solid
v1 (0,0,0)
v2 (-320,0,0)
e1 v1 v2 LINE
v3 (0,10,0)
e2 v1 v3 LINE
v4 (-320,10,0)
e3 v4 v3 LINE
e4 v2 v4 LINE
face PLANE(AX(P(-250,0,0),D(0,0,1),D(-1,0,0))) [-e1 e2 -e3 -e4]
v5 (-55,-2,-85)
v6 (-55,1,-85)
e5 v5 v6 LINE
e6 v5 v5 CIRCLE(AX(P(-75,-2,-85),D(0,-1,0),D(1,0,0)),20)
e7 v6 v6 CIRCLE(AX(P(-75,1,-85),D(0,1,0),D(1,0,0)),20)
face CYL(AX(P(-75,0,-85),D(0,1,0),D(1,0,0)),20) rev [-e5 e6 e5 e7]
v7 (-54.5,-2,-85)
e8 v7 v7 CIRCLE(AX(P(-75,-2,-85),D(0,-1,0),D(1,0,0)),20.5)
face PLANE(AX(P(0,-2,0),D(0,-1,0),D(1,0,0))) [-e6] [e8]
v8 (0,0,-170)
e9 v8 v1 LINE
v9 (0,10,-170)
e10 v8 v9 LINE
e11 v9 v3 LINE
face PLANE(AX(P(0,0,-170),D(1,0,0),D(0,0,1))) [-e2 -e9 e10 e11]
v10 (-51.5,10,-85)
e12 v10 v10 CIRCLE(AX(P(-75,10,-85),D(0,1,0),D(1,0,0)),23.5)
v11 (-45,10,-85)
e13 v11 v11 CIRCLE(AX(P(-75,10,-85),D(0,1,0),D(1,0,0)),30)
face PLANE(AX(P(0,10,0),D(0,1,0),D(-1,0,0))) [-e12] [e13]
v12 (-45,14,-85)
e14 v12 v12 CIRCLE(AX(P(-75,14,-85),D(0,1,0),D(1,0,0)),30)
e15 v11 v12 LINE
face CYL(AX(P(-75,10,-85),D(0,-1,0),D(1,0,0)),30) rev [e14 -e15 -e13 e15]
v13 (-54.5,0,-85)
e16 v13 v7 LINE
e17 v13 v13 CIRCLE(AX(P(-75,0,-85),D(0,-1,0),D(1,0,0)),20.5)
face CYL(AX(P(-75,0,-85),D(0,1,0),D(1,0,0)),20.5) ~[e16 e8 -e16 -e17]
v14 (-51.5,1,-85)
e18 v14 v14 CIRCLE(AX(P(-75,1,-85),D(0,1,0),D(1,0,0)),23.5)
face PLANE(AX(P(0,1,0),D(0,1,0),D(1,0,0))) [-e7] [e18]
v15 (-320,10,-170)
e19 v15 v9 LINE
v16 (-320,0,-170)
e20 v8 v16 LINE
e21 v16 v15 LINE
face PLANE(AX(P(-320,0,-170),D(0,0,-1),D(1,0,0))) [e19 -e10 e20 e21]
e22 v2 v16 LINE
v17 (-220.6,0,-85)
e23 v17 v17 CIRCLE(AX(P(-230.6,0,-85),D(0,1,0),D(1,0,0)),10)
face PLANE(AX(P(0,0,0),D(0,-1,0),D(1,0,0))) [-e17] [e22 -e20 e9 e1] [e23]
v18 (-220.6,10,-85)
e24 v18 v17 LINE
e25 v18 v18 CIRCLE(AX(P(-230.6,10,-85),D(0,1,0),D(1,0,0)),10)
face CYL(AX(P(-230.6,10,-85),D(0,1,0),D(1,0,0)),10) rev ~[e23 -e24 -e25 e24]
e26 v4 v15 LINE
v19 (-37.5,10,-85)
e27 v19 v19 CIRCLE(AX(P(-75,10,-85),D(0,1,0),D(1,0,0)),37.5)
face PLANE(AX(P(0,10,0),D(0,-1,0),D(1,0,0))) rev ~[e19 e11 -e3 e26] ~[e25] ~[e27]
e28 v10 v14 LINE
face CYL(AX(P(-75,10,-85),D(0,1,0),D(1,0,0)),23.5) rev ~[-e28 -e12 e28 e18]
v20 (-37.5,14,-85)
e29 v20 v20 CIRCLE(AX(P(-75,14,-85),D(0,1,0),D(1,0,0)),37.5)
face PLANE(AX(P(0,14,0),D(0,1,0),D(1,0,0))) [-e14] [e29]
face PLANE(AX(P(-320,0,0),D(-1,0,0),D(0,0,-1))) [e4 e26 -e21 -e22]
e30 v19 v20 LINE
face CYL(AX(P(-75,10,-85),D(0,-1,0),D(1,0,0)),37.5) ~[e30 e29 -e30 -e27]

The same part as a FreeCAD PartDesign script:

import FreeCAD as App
import Part
import Sketcher

V = App.Vector


def add_polygon(sketch, points):
    """Adds a closed chain of lines whose ends are joined by coincident constraints."""
    first, n = sketch.GeometryCount, len(points)
    for a, b in zip(points, points[1:] + points[:1]):
        sketch.addGeometry(Part.LineSegment(App.Vector(*a, 0), App.Vector(*b, 0)), False)
    for i in range(n):
        sketch.addConstraint(Sketcher.Constraint("Coincident", first + i, 2, first + (i + 1) % n, 1))

doc = App.newDocument("Part")
body = doc.addObject("PartDesign::Body", "Body")

sketch1 = body.newObject("Sketcher::SketchObject", "Sketch")
sketch1.AttachmentSupport = (doc.getObject("XZ_Plane"), [""])
sketch1.MapMode = "FlatFace"
add_polygon(sketch1, [(-250, 0), (0, 0), (0, -170), (-250, -170)])
sketch1.addConstraint([
    Sketcher.Constraint("Horizontal", 0),
    Sketcher.Constraint("Vertical", 1),
    Sketcher.Constraint("Horizontal", 2),
    Sketcher.Constraint("Vertical", 3),
    Sketcher.Constraint("Coincident", 0, 2, -1, 1),
    Sketcher.Constraint("DistanceX", 0, 1, 0, 2, 250.0),
    Sketcher.Constraint("DistanceY", 1, 2, 1, 1, 170.0),
])
pad1 = body.newObject("PartDesign::Pad", "Pad")
pad1.Profile = sketch1
pad1.Length = 10
pad1.Reversed = True

sketch2 = body.newObject("Sketcher::SketchObject", "Sketch001")
sketch2.AttachmentSupport = (doc.getObject("XZ_Plane"), [""])
sketch2.MapMode = "FlatFace"
sketch2.AttachmentOffset = App.Placement(V(0, 0, -10), App.Rotation())
sketch2.addGeometry(Part.Circle(V(-75, -85, 0), V(0, 0, 1), 20), False)
sketch2.addConstraint([
    Sketcher.Constraint("Diameter", 0, 40.0),
    Sketcher.Constraint("DistanceX", 0, 3, -1, 1, 75.0),
    Sketcher.Constraint("DistanceY", 0, 3, -1, 1, 85.0),
])
pocket1 = body.newObject("PartDesign::Pocket", "Pocket")
pocket1.Profile = sketch2
pocket1.Length = 10
pocket1.Reversed = True

sketch3 = body.newObject("Sketcher::SketchObject", "Sketch002")
sketch3.AttachmentSupport = (doc.getObject("XZ_Plane"), [""])
sketch3.MapMode = "FlatFace"
sketch3.AttachmentOffset = App.Placement(V(0, 0, -10), App.Rotation())
sketch3.addGeometry([
    Part.Circle(V(-75, -85, 0), V(0, 0, 1), 24),
    Part.Circle(V(-75, -85, 0), V(0, 0, 1), 20),
], False)
sketch3.addConstraint([
    Sketcher.Constraint("Coincident", 1, 3, 0, 3),
    Sketcher.Constraint("Diameter", 0, 47.0),
    Sketcher.Constraint("Diameter", 1, 40.0),
    Sketcher.Constraint("DistanceX", 0, 3, -1, 1, 75.0),
    Sketcher.Constraint("DistanceY", 0, 3, -1, 1, 85.0),
])
pocket2 = body.newObject("PartDesign::Pocket", "Pocket001")
pocket2.Profile = sketch3
pocket2.Length = 9
pocket2.Reversed = True

sketch4 = body.newObject("Sketcher::SketchObject", "Sketch003")
sketch4.AttachmentSupport = (doc.getObject("XZ_Plane"), [""])
sketch4.MapMode = "FlatFace"
sketch4.AttachmentOffset = App.Placement(V(0, 0, -10), App.Rotation())
sketch4.addGeometry([
    Part.Circle(V(-75, -85, 0), V(0, 0, 1), 38),
    Part.Circle(V(-75, -85, 0), V(0, 0, 1), 30),
], False)
sketch4.addConstraint([
    Sketcher.Constraint("Coincident", 1, 3, 0, 3),
    Sketcher.Constraint("Diameter", 0, 75.0),
    Sketcher.Constraint("Diameter", 1, 60.0),
    Sketcher.Constraint("DistanceX", 0, 3, -1, 1, 75.0),
    Sketcher.Constraint("DistanceY", 0, 3, -1, 1, 85.0),
])
pad2 = body.newObject("PartDesign::Pad", "Pad001")
pad2.Profile = sketch4
pad2.Length = 4
pad2.Reversed = True

sketch5 = body.newObject("Sketcher::SketchObject", "Sketch004")
sketch5.AttachmentSupport = (doc.getObject("XZ_Plane"), [""])
sketch5.MapMode = "FlatFace"
sketch5.addGeometry([
    Part.Circle(V(-75, -85, 0), V(0, 0, 1), 20),
    Part.Circle(V(-75, -85, 0), V(0, 0, 1), 20),
], False)
sketch5.addConstraint([
    Sketcher.Constraint("Coincident", 1, 3, 0, 3),
    Sketcher.Constraint("Diameter", 0, 41.0),
    Sketcher.Constraint("Diameter", 1, 40.0),
    Sketcher.Constraint("DistanceX", 0, 3, -1, 1, 75.0),
    Sketcher.Constraint("DistanceY", 0, 3, -1, 1, 85.0),
])
pad3 = body.newObject("PartDesign::Pad", "Pad002")
pad3.Profile = sketch5
pad3.Length = 2

sketch6 = body.newObject("Sketcher::SketchObject", "Sketch005")
sketch6.AttachmentSupport = (doc.getObject("XZ_Plane"), [""])
sketch6.MapMode = "FlatFace"
sketch6.AttachmentOffset = App.Placement(V(0, 0, -10), App.Rotation())
sketch6.addGeometry(Part.Circle(V(-231, -85, 0), V(0, 0, 1), 10), False)
sketch6.addConstraint([
    Sketcher.Constraint("Diameter", 0, 20.0),
    Sketcher.Constraint("DistanceY", 0, 3, -1, 1, 85.0),
    Sketcher.Constraint("DistanceX", 0, 3, -1, 1, 230.6),
])
pocket3 = body.newObject("PartDesign::Pocket", "Pocket002")
pocket3.Profile = sketch6
pocket3.Length = 10
pocket3.Reversed = True

sketch7 = body.newObject("Sketcher::SketchObject", "Sketch006")
sketch7.AttachmentSupport = (doc.getObject("XZ_Plane"), [""])
sketch7.MapMode = "FlatFace"
add_polygon(sketch7, [(-320, -170), (-250, -170), (-250, 0), (-320, 0)])
sketch7.addConstraint([
    Sketcher.Constraint("Horizontal", 0),
    Sketcher.Constraint("Vertical", 1),
    Sketcher.Constraint("Horizontal", 2),
    Sketcher.Constraint("Vertical", 3),
    Sketcher.Constraint("PointOnObject", 1, 2, -1),
    Sketcher.Constraint("DistanceX", 0, 1, 0, 2, 70.0),
    Sketcher.Constraint("DistanceY", 1, 1, 1, 2, 170.0),
    Sketcher.Constraint("DistanceX", 0, 2, -1, 1, 250.0),
])
pad4 = body.newObject("PartDesign::Pad", "Pad003")
pad4.Profile = sketch7
pad4.Length = 10
pad4.Reversed = True

doc.recompute()
